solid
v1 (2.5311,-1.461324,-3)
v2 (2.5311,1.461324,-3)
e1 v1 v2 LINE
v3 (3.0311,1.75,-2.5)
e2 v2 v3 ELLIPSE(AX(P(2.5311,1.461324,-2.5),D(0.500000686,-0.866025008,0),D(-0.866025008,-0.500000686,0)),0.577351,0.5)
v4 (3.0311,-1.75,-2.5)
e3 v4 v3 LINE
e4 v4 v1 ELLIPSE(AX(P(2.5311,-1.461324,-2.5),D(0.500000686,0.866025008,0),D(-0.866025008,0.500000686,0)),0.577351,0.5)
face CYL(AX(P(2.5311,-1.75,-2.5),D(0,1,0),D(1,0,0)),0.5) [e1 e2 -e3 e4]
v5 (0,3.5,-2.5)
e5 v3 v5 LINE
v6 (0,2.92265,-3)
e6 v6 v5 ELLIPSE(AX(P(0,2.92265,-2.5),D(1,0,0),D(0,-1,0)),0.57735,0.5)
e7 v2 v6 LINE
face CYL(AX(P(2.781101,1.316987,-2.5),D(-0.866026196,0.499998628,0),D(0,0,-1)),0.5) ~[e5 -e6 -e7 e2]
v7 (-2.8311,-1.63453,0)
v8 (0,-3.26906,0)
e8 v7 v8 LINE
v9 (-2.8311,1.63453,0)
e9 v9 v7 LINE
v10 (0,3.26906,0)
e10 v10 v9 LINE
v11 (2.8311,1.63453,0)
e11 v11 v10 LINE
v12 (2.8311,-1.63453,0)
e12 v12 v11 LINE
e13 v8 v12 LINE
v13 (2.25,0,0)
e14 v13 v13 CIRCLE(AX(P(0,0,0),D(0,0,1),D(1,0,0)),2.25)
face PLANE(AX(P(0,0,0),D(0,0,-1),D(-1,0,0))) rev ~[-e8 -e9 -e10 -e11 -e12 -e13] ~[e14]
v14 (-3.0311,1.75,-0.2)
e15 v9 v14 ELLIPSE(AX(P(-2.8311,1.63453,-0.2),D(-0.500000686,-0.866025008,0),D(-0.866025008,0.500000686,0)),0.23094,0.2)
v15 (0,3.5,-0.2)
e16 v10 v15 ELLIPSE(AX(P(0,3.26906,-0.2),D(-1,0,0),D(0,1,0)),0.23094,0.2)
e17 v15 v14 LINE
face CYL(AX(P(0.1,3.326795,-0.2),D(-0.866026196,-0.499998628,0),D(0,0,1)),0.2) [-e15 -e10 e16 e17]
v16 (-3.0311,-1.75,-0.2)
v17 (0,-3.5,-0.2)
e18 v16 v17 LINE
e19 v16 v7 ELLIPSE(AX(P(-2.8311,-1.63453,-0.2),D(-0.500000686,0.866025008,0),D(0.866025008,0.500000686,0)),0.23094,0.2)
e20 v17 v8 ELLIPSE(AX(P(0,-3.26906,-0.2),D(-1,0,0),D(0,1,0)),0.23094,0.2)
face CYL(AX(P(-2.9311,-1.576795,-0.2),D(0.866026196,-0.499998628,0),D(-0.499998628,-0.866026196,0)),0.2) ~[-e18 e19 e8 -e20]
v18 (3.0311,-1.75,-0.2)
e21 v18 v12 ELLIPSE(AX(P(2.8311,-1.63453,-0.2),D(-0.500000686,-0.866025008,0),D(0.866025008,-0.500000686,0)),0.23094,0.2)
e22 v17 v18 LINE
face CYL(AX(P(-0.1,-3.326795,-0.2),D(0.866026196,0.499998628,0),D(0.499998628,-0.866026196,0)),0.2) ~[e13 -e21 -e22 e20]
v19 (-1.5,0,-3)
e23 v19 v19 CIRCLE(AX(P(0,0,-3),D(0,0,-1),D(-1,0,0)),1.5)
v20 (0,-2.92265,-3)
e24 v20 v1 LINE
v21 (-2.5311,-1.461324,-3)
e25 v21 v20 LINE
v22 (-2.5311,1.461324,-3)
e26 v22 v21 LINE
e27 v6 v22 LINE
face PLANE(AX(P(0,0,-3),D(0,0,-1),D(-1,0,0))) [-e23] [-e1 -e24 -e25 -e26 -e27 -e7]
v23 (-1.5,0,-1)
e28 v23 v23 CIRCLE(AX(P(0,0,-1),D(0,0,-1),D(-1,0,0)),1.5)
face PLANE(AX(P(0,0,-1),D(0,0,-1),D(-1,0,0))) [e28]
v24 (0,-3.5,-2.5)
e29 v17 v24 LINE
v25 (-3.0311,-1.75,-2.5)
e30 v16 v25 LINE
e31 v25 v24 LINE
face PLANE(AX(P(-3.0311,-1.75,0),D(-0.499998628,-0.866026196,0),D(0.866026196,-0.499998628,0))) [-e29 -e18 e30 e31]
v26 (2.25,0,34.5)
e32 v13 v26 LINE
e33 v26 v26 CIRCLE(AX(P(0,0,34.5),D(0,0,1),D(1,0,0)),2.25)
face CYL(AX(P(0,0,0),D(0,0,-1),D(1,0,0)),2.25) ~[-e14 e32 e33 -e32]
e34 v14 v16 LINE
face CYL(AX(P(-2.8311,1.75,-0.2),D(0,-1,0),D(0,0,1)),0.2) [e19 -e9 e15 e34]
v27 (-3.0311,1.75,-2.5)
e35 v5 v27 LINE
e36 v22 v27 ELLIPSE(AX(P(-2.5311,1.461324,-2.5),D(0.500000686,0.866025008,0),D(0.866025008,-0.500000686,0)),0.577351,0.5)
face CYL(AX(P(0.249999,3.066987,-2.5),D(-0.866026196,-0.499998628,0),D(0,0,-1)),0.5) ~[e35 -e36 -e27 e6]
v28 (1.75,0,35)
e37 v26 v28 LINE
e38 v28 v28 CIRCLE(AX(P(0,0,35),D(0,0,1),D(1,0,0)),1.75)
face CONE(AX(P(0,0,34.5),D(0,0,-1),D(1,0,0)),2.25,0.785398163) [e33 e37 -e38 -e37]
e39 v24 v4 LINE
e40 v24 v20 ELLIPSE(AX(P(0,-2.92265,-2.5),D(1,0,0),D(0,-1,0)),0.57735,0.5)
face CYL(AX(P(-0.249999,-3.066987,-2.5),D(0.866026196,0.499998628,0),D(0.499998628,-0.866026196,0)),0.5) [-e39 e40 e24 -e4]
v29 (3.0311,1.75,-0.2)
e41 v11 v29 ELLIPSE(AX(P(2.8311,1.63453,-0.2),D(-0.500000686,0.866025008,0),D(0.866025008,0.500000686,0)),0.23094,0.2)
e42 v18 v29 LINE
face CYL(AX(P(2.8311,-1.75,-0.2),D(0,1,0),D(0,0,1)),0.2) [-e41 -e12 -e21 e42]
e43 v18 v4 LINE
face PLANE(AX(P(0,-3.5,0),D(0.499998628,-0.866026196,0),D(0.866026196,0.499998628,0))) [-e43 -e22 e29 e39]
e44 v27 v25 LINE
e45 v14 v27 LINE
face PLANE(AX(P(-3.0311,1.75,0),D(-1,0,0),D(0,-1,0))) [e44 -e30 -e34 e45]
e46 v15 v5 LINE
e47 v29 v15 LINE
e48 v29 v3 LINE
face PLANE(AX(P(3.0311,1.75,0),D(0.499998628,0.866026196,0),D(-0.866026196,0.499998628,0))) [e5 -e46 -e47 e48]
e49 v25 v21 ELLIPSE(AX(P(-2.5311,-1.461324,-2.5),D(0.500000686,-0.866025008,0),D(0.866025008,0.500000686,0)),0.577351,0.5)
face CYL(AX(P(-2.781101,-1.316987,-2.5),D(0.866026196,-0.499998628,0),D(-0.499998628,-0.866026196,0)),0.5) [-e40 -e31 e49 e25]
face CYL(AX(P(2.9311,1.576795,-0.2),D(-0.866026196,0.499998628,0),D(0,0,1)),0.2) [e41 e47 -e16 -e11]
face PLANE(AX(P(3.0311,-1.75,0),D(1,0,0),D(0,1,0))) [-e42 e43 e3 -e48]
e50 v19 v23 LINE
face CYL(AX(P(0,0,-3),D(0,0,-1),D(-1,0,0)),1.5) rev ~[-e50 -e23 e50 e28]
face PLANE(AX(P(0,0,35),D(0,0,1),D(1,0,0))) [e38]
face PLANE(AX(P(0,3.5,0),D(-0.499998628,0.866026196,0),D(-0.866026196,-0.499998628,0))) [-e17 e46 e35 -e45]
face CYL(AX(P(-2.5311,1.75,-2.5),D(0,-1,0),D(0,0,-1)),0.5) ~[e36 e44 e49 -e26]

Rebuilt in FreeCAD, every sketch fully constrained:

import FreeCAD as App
import Part
import Sketcher
from FreeCAD import Vector
Q = App.Units.Quantity


def edges_at(feature, points):
    """Names of the edges that pass closest to the given points."""
    edges = feature.Shape.Edges
    near = lambda p: min(range(len(edges)), key=lambda i: edges[i].distToShape(Part.Vertex(*p))[0])
    return sorted({f"Edge{near(p) + 1}" for p in points})

doc = App.newDocument("Part")
body = doc.addObject("PartDesign::Body", "Body")

# Sketch on XY plane
sketch1 = body.newObject("Sketcher::SketchObject", "Sketch")
sketch1.AttachmentSupport = (doc.getObject("XY_Plane"), [""])
sketch1.MapMode = "FlatFace"
sketch1.addGeometry(Part.Circle(Vector(0, 0, 0), Vector(0, 0, 1), 2.2), False)
sketch1.addConstraint([
    Sketcher.Constraint("Coincident", 0, 3, -1, 1),
    Sketcher.Constraint("Diameter", 0, Q("4.5 mm")),
])
pad1 = body.newObject("PartDesign::Pad", "Pad")
pad1.Profile = sketch1
pad1.Length = 35

# Sketch on XY plane
sketch2 = body.newObject("Sketcher::SketchObject", "Sketch001")
sketch2.AttachmentSupport = (doc.getObject("XY_Plane"), [""])
sketch2.MapMode = "FlatFace"
sketch2.addGeometry([
    Part.LineSegment(Vector(3, -1.8, 0), Vector(0, -3.5, 0)),  # 0
    Part.LineSegment(Vector(0, -3.5, 0), Vector(-3, -1.8, 0)),  # 1
    Part.LineSegment(Vector(-3, -1.8, 0), Vector(-3, 1.8, 0)),  # 2
    Part.LineSegment(Vector(-3, 1.8, 0), Vector(0, 3.5, 0)),  # 3
    Part.LineSegment(Vector(0, 3.5, 0), Vector(3, 1.8, 0)),  # 4
    Part.LineSegment(Vector(3, 1.8, 0), Vector(3, -1.8, 0)),  # 5
], False)
sketch2.addConstraint([
    Sketcher.Constraint("Coincident", 0, 2, 1, 1),
    Sketcher.Constraint("Coincident", 1, 2, 2, 1),
    Sketcher.Constraint("Coincident", 2, 2, 3, 1),
    Sketcher.Constraint("Coincident", 3, 2, 4, 1),
    Sketcher.Constraint("Coincident", 4, 2, 5, 1),
    Sketcher.Constraint("Coincident", 5, 2, 0, 1),
    Sketcher.Constraint("Vertical", 2),
    Sketcher.Constraint("Vertical", 5),
    Sketcher.Constraint("Symmetric", 0, 2, 3, 2, -1, 1),
    Sketcher.Constraint("Symmetric", 1, 2, 4, 2, -1, 1),
    Sketcher.Constraint("PointOnObject", 0, 2, -2),
    Sketcher.Constraint("Parallel", 0, 3),
    Sketcher.Constraint("Horizontal", 2, 2, 4, 2),
    Sketcher.Constraint("Angle", 0, Q("-150 deg")),
    Sketcher.Constraint("DistanceY", 2, 1, 2, 2, Q("3.5 mm")),
    Sketcher.Constraint("DistanceY", 0, 2, 3, 2, Q("7 mm")),
])
pad2 = body.newObject("PartDesign::Pad", "Pad001")
pad2.Profile = sketch2
pad2.Length = 3
pad2.Reversed = True
doc.recompute()

fillet = body.newObject("PartDesign::Fillet", "Fillet")
fillet.Base = (pad2, edges_at(pad2, [
    (-1.516, -2.625, -3),
    (-3.031, 0, -3),
    (-1.516, 2.625, -3),
    (1.516, 2.625, -3),
    (3.031, 0, -3),
    (1.516, -2.625, -3),
]))
fillet.Radius = 0.5
doc.recompute()

fillet2 = body.newObject("PartDesign::Fillet", "Fillet001")
fillet2.Base = (fillet, edges_at(fillet, [
    (1.516, -2.625, 0),
    (3.031, 0, 0),
    (1.516, 2.625, 0),
    (-1.516, -2.625, 0),
    (-1.516, 2.625, 0),
    (-3.031, 0, 0),
]))
fillet2.Radius = 0.2

# Sketch on XY plane
sketch3 = body.newObject("Sketcher::SketchObject", "Sketch002")
sketch3.AttachmentSupport = (doc.getObject("XY_Plane"), [""])
sketch3.MapMode = "FlatFace"
sketch3.AttachmentOffset = App.Placement(Vector(0, 0, -3), App.Rotation())
sketch3.addGeometry(Part.Circle(Vector(0, 0, 0), Vector(0, 0, 1), 1.5), False)
sketch3.addConstraint([
    Sketcher.Constraint("Coincident", 0, 3, -1, 1),
    Sketcher.Constraint("Diameter", 0, Q("3 mm")),
])
pocket1 = body.newObject("PartDesign::Pocket", "Pocket")
pocket1.Profile = sketch3
pocket1.Length = 2
pocket1.Reversed = True
doc.recompute()

chamfer = body.newObject("PartDesign::Chamfer", "Chamfer")
chamfer.Base = (pocket1, edges_at(pocket1, [(-2.25, 0, 35)]))
chamfer.Size = 0.5

doc.recompute()
